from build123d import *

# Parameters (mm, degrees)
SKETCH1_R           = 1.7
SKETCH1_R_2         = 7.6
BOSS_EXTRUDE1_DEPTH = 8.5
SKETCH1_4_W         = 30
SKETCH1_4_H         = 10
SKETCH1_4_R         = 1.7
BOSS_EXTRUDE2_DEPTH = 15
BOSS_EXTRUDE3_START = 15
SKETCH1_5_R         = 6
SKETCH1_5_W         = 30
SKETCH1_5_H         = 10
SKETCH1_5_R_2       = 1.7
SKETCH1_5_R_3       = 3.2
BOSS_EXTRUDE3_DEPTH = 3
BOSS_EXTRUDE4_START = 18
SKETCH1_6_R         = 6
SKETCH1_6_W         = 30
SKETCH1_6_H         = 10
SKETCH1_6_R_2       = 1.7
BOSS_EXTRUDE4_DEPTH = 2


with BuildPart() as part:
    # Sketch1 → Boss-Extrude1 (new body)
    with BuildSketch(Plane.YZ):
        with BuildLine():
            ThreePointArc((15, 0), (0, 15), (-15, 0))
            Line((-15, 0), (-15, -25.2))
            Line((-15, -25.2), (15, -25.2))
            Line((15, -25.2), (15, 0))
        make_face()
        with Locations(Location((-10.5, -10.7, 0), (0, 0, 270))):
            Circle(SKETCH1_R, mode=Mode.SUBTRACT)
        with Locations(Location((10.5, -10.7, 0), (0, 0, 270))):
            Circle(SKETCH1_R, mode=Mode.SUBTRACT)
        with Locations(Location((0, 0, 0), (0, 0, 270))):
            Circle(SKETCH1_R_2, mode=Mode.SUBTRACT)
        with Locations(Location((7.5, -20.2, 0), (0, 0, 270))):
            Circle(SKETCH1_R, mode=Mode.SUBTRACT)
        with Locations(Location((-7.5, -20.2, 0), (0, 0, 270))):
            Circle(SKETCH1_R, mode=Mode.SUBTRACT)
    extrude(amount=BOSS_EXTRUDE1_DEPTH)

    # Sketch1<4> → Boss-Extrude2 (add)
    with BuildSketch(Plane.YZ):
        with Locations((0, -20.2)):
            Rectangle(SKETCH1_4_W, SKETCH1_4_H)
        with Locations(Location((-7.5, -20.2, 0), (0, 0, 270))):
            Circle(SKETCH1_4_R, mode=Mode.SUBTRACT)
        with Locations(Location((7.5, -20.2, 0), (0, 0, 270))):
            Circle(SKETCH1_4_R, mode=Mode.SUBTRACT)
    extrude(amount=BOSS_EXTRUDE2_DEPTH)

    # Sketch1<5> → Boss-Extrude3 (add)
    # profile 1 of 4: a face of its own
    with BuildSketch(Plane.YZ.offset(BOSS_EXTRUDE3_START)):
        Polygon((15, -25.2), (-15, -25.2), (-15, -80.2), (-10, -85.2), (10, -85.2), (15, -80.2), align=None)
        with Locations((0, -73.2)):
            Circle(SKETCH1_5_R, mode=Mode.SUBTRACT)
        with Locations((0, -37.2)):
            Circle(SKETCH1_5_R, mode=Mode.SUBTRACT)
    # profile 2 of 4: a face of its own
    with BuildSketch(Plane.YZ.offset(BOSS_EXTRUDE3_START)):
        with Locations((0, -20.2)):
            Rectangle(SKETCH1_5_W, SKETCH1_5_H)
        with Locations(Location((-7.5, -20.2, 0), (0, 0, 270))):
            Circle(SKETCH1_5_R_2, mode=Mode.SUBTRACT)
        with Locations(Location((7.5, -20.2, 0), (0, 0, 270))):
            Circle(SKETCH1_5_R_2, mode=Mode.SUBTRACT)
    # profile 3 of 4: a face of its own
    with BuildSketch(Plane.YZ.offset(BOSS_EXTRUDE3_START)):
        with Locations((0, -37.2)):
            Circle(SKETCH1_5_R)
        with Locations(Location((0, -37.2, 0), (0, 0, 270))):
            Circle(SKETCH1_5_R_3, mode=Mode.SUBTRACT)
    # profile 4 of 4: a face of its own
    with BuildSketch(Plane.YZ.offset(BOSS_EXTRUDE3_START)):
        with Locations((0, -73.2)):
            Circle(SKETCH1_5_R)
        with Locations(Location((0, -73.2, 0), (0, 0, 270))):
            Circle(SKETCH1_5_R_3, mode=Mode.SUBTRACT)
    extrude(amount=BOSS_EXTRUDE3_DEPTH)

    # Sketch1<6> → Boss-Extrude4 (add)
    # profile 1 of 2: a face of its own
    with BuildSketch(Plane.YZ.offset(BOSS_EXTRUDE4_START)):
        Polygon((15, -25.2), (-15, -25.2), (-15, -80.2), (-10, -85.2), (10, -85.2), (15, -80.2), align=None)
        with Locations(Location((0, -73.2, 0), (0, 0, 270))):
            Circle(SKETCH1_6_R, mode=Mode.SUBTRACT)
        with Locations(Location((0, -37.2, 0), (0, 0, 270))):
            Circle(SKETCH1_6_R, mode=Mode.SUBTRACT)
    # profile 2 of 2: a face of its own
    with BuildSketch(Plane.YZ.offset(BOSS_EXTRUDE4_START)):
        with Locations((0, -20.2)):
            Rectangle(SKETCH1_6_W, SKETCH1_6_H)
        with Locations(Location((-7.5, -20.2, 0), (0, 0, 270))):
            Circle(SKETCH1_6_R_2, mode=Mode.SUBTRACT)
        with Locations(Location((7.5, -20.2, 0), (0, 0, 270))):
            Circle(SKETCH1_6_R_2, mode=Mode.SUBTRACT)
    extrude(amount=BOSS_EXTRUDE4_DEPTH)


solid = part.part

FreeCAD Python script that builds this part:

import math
import FreeCAD as App
import Part
import Sketcher

V = App.Vector


def add_polygon(sketch, points):
    """Adds a closed chain of lines whose ends are joined by coincident constraints."""
    first, n = sketch.GeometryCount, len(points)
    for a, b in zip(points, points[1:] + points[:1]):
        sketch.addGeometry(Part.LineSegment(App.Vector(*a, 0), App.Vector(*b, 0)), False)
    for i in range(n):
        sketch.addConstraint(Sketcher.Constraint("Coincident", first + i, 2, first + (i + 1) % n, 1))

doc = App.newDocument("Part")
body = doc.addObject("PartDesign::Body", "Body")

# Sketch on YZ plane
sketch1 = body.newObject("Sketcher::SketchObject", "Sketch")
sketch1.AttachmentSupport = (doc.getObject("YZ_Plane"), [""])
sketch1.MapMode = "FlatFace"
sketch1.addGeometry([
    Part.ArcOfCircle(Part.Circle(V(0, 0, 0), V(0, 0, 1), 15), math.radians(0), math.radians(180)),  # 0
    Part.LineSegment(V(-15, 0, 0), V(-15, -25.2, 0)),  # 1
    Part.LineSegment(V(-15, -25.2, 0), V(15, -25.2, 0)),  # 2
    Part.LineSegment(V(15, -25.2, 0), V(15, 0, 0)),  # 3
    Part.Circle(V(-7.5, -20.2, 0), V(0, 0, 1), 1.7),  # 4
    Part.Circle(V(-10.5, -10.7, 0), V(0, 0, 1), 1.7),  # 5
    Part.Circle(V(7.5, -20.2, 0), V(0, 0, 1), 1.7),  # 6
    Part.Circle(V(10.5, -10.7, 0), V(0, 0, 1), 1.7),  # 7
    Part.Circle(V(0, 0, 0), V(0, 0, 1), 7.6),  # 8
], False)
sketch1.addConstraint([
    Sketcher.Constraint("Tangent", 0, 2, 1, 1),
    Sketcher.Constraint("Coincident", 1, 2, 2, 1),
    Sketcher.Constraint("Coincident", 2, 2, 3, 1),
    Sketcher.Constraint("Tangent", 3, 2, 0, 1),
    Sketcher.Constraint("Vertical", 1),
    Sketcher.Constraint("Horizontal", 2),
    Sketcher.Constraint("Vertical", 3),
    Sketcher.Constraint("Coincident", 0, 3, -1, 1),
    Sketcher.Constraint("Coincident", 8, 3, -1, 1),
    Sketcher.Constraint("Equal", 4, 5),
    Sketcher.Constraint("Equal", 5, 6),
    Sketcher.Constraint("Equal", 6, 7),
    Sketcher.Constraint("Symmetric", 4, 3, 6, 3, -2),
    Sketcher.Constraint("Symmetric", 5, 3, 7, 3, -2),
    Sketcher.Constraint("Radius", 0, 15.0),
    Sketcher.Constraint("Diameter", 4, 3.4),
    Sketcher.Constraint("Diameter", 8, 15.2),
    Sketcher.Constraint("DistanceY", 1, 2, 1, 1, 25.2),
    Sketcher.Constraint("DistanceX", 5, 3, 4, 3, 3.0),
    Sketcher.Constraint("DistanceX", 4, 3, 6, 3, 15.0),
    Sketcher.Constraint("DistanceY", 1, 2, 4, 3, 5.0),
    Sketcher.Constraint("DistanceY", 5, 3, -1, 1, 10.7),
])
pad1 = body.newObject("PartDesign::Pad", "Pad")
pad1.Profile = sketch1
pad1.Length = 8.5

# Sketch on YZ plane
sketch2 = body.newObject("Sketcher::SketchObject", "Sketch001")
sketch2.AttachmentSupport = (doc.getObject("YZ_Plane"), [""])
sketch2.MapMode = "FlatFace"
add_polygon(sketch2, [(-15, -15.2), (-15, -25.2), (15, -25.2), (15, -15.2)])  # lines 0-3
sketch2.addGeometry(Part.Circle(V(-7.5, -20.2, 0), V(0, 0, 1), 1.7), False)  # 4
sketch2.addGeometry(Part.Circle(V(7.5, -20.2, 0), V(0, 0, 1), 1.7), False)  # 5
sketch2.addConstraint([
    Sketcher.Constraint("Vertical", 0),
    Sketcher.Constraint("Horizontal", 1),
    Sketcher.Constraint("Vertical", 2),
    Sketcher.Constraint("Horizontal", 3),
    Sketcher.Constraint("Equal", 4, 5),
    Sketcher.Constraint("Symmetric", 4, 3, 5, 3, -2),
    Sketcher.Constraint("Diameter", 4, 3.4),
    Sketcher.Constraint("DistanceX", 1, 1, 1, 2, 30.0),
    Sketcher.Constraint("DistanceY", 0, 2, 0, 1, 10.0),
    Sketcher.Constraint("DistanceX", 0, 2, -1, 1, 15.0),
    Sketcher.Constraint("DistanceX", 4, 3, 5, 3, 15.0),
    Sketcher.Constraint("DistanceY", 0, 2, 4, 3, 5.0),
    Sketcher.Constraint("DistanceY", 4, 3, -1, 1, 20.2),
])
pad2 = body.newObject("PartDesign::Pad", "Pad001")
pad2.Profile = sketch2
pad2.Length = 15

# Sketch on YZ plane
sketch3 = body.newObject("Sketcher::SketchObject", "Sketch002")
sketch3.AttachmentSupport = (doc.getObject("YZ_Plane"), [""])
sketch3.MapMode = "FlatFace"
sketch3.AttachmentOffset = App.Placement(V(0, 0, 15), App.Rotation())
add_polygon(sketch3, [(15, -80.2), (15, -15.2), (-15, -15.2), (-15, -80.2), (-10, -85.2), (10, -85.2)])  # lines 0-5
sketch3.addGeometry(Part.Circle(V(7.5, -20.2, 0), V(0, 0, 1), 1.7), False)  # 6
sketch3.addGeometry(Part.Circle(V(-7.5, -20.2, 0), V(0, 0, 1), 1.7), False)  # 7
sketch3.addGeometry(Part.Circle(V(0, -73.2, 0), V(0, 0, 1), 3.2), False)  # 8
sketch3.addGeometry(Part.Circle(V(0, -37.2, 0), V(0, 0, 1), 3.2), False)  # 9
sketch3.addConstraint([
    Sketcher.Constraint("Vertical", 0),
    Sketcher.Constraint("Horizontal", 1),
    Sketcher.Constraint("Vertical", 2),
    Sketcher.Constraint("Horizontal", 4),
    Sketcher.Constraint("Equal", 6, 7),
    Sketcher.Constraint("Equal", 8, 9),
    Sketcher.Constraint("Symmetric", 6, 3, 7, 3, -2),
    Sketcher.Constraint("Symmetric", 2, 2, 5, 2, -2),
    Sketcher.Constraint("PointOnObject", 8, 3, -2),
    Sketcher.Constraint("PointOnObject", 9, 3, -2),
    Sketcher.Constraint("Perpendicular", 3, 5),
    Sketcher.Constraint("Equal", 3, 5),
    Sketcher.Constraint("Diameter", 6, 3.4),
    Sketcher.Constraint("Diameter", 8, 6.4),
    Sketcher.Constraint("DistanceX", 1, 2, 1, 1, 30.0),
    Sketcher.Constraint("DistanceX", 4, 1, 4, 2, 20.0),
    Sketcher.Constraint("DistanceY", 0, 1, 0, 2, 65.0),
    Sketcher.Constraint("DistanceX", 7, 3, 6, 3, 15.0),
    Sketcher.Constraint("DistanceY", 8, 3, 6, 3, 53.0),
    Sketcher.Constraint("DistanceY", 9, 3, 6, 3, 17.0),
    Sketcher.Constraint("DistanceY", 6, 3, 0, 2, 5.0),
    Sketcher.Constraint("DistanceY", 6, 3, -1, 1, 20.2),
])
pad3 = body.newObject("PartDesign::Pad", "Pad002")
pad3.Profile = sketch3
pad3.Length = 3

# Sketch on YZ plane
sketch4 = body.newObject("Sketcher::SketchObject", "Sketch003")
sketch4.AttachmentSupport = (doc.getObject("YZ_Plane"), [""])
sketch4.MapMode = "FlatFace"
sketch4.AttachmentOffset = App.Placement(V(0, 0, 18), App.Rotation())
add_polygon(sketch4, [(15, -80.2), (15, -15.2), (-15, -15.2), (-15, -80.2), (-10, -85.2), (10, -85.2)])  # lines 0-5
sketch4.addGeometry(Part.Circle(V(0, -73.2, 0), V(0, 0, 1), 6), False)  # 6
sketch4.addGeometry(Part.Circle(V(0, -37.2, 0), V(0, 0, 1), 6), False)  # 7
sketch4.addGeometry(Part.Circle(V(7.5, -20.2, 0), V(0, 0, 1), 1.7), False)  # 8
sketch4.addGeometry(Part.Circle(V(-7.5, -20.2, 0), V(0, 0, 1), 1.7), False)  # 9
sketch4.addConstraint([
    Sketcher.Constraint("Vertical", 0),
    Sketcher.Constraint("Horizontal", 1),
    Sketcher.Constraint("Vertical", 2),
    Sketcher.Constraint("Horizontal", 4),
    Sketcher.Constraint("Equal", 6, 7),
    Sketcher.Constraint("Equal", 8, 9),
    Sketcher.Constraint("Symmetric", 8, 3, 9, 3, -2),
    Sketcher.Constraint("Symmetric", 2, 2, 5, 2, -2),
    Sketcher.Constraint("PointOnObject", 6, 3, -2),
    Sketcher.Constraint("PointOnObject", 7, 3, -2),
    Sketcher.Constraint("Perpendicular", 3, 5),
    Sketcher.Constraint("Equal", 3, 5),
    Sketcher.Constraint("Diameter", 6, 12.0),
    Sketcher.Constraint("Diameter", 8, 3.4),
    Sketcher.Constraint("DistanceX", 1, 2, 1, 1, 30.0),
    Sketcher.Constraint("DistanceX", 4, 1, 4, 2, 20.0),
    Sketcher.Constraint("DistanceY", 0, 1, 0, 2, 65.0),
    Sketcher.Constraint("DistanceY", 6, 3, 7, 3, 36.0),
    Sketcher.Constraint("DistanceY", 7, 3, 8, 3, 17.0),
    Sketcher.Constraint("DistanceX", 9, 3, 8, 3, 15.0),
    Sketcher.Constraint("DistanceY", 8, 3, 0, 2, 5.0),
    Sketcher.Constraint("DistanceY", 6, 3, -1, 1, 73.2),
])
pad4 = body.newObject("PartDesign::Pad", "Pad003")
pad4.Profile = sketch4
pad4.Length = 2

doc.recompute()
